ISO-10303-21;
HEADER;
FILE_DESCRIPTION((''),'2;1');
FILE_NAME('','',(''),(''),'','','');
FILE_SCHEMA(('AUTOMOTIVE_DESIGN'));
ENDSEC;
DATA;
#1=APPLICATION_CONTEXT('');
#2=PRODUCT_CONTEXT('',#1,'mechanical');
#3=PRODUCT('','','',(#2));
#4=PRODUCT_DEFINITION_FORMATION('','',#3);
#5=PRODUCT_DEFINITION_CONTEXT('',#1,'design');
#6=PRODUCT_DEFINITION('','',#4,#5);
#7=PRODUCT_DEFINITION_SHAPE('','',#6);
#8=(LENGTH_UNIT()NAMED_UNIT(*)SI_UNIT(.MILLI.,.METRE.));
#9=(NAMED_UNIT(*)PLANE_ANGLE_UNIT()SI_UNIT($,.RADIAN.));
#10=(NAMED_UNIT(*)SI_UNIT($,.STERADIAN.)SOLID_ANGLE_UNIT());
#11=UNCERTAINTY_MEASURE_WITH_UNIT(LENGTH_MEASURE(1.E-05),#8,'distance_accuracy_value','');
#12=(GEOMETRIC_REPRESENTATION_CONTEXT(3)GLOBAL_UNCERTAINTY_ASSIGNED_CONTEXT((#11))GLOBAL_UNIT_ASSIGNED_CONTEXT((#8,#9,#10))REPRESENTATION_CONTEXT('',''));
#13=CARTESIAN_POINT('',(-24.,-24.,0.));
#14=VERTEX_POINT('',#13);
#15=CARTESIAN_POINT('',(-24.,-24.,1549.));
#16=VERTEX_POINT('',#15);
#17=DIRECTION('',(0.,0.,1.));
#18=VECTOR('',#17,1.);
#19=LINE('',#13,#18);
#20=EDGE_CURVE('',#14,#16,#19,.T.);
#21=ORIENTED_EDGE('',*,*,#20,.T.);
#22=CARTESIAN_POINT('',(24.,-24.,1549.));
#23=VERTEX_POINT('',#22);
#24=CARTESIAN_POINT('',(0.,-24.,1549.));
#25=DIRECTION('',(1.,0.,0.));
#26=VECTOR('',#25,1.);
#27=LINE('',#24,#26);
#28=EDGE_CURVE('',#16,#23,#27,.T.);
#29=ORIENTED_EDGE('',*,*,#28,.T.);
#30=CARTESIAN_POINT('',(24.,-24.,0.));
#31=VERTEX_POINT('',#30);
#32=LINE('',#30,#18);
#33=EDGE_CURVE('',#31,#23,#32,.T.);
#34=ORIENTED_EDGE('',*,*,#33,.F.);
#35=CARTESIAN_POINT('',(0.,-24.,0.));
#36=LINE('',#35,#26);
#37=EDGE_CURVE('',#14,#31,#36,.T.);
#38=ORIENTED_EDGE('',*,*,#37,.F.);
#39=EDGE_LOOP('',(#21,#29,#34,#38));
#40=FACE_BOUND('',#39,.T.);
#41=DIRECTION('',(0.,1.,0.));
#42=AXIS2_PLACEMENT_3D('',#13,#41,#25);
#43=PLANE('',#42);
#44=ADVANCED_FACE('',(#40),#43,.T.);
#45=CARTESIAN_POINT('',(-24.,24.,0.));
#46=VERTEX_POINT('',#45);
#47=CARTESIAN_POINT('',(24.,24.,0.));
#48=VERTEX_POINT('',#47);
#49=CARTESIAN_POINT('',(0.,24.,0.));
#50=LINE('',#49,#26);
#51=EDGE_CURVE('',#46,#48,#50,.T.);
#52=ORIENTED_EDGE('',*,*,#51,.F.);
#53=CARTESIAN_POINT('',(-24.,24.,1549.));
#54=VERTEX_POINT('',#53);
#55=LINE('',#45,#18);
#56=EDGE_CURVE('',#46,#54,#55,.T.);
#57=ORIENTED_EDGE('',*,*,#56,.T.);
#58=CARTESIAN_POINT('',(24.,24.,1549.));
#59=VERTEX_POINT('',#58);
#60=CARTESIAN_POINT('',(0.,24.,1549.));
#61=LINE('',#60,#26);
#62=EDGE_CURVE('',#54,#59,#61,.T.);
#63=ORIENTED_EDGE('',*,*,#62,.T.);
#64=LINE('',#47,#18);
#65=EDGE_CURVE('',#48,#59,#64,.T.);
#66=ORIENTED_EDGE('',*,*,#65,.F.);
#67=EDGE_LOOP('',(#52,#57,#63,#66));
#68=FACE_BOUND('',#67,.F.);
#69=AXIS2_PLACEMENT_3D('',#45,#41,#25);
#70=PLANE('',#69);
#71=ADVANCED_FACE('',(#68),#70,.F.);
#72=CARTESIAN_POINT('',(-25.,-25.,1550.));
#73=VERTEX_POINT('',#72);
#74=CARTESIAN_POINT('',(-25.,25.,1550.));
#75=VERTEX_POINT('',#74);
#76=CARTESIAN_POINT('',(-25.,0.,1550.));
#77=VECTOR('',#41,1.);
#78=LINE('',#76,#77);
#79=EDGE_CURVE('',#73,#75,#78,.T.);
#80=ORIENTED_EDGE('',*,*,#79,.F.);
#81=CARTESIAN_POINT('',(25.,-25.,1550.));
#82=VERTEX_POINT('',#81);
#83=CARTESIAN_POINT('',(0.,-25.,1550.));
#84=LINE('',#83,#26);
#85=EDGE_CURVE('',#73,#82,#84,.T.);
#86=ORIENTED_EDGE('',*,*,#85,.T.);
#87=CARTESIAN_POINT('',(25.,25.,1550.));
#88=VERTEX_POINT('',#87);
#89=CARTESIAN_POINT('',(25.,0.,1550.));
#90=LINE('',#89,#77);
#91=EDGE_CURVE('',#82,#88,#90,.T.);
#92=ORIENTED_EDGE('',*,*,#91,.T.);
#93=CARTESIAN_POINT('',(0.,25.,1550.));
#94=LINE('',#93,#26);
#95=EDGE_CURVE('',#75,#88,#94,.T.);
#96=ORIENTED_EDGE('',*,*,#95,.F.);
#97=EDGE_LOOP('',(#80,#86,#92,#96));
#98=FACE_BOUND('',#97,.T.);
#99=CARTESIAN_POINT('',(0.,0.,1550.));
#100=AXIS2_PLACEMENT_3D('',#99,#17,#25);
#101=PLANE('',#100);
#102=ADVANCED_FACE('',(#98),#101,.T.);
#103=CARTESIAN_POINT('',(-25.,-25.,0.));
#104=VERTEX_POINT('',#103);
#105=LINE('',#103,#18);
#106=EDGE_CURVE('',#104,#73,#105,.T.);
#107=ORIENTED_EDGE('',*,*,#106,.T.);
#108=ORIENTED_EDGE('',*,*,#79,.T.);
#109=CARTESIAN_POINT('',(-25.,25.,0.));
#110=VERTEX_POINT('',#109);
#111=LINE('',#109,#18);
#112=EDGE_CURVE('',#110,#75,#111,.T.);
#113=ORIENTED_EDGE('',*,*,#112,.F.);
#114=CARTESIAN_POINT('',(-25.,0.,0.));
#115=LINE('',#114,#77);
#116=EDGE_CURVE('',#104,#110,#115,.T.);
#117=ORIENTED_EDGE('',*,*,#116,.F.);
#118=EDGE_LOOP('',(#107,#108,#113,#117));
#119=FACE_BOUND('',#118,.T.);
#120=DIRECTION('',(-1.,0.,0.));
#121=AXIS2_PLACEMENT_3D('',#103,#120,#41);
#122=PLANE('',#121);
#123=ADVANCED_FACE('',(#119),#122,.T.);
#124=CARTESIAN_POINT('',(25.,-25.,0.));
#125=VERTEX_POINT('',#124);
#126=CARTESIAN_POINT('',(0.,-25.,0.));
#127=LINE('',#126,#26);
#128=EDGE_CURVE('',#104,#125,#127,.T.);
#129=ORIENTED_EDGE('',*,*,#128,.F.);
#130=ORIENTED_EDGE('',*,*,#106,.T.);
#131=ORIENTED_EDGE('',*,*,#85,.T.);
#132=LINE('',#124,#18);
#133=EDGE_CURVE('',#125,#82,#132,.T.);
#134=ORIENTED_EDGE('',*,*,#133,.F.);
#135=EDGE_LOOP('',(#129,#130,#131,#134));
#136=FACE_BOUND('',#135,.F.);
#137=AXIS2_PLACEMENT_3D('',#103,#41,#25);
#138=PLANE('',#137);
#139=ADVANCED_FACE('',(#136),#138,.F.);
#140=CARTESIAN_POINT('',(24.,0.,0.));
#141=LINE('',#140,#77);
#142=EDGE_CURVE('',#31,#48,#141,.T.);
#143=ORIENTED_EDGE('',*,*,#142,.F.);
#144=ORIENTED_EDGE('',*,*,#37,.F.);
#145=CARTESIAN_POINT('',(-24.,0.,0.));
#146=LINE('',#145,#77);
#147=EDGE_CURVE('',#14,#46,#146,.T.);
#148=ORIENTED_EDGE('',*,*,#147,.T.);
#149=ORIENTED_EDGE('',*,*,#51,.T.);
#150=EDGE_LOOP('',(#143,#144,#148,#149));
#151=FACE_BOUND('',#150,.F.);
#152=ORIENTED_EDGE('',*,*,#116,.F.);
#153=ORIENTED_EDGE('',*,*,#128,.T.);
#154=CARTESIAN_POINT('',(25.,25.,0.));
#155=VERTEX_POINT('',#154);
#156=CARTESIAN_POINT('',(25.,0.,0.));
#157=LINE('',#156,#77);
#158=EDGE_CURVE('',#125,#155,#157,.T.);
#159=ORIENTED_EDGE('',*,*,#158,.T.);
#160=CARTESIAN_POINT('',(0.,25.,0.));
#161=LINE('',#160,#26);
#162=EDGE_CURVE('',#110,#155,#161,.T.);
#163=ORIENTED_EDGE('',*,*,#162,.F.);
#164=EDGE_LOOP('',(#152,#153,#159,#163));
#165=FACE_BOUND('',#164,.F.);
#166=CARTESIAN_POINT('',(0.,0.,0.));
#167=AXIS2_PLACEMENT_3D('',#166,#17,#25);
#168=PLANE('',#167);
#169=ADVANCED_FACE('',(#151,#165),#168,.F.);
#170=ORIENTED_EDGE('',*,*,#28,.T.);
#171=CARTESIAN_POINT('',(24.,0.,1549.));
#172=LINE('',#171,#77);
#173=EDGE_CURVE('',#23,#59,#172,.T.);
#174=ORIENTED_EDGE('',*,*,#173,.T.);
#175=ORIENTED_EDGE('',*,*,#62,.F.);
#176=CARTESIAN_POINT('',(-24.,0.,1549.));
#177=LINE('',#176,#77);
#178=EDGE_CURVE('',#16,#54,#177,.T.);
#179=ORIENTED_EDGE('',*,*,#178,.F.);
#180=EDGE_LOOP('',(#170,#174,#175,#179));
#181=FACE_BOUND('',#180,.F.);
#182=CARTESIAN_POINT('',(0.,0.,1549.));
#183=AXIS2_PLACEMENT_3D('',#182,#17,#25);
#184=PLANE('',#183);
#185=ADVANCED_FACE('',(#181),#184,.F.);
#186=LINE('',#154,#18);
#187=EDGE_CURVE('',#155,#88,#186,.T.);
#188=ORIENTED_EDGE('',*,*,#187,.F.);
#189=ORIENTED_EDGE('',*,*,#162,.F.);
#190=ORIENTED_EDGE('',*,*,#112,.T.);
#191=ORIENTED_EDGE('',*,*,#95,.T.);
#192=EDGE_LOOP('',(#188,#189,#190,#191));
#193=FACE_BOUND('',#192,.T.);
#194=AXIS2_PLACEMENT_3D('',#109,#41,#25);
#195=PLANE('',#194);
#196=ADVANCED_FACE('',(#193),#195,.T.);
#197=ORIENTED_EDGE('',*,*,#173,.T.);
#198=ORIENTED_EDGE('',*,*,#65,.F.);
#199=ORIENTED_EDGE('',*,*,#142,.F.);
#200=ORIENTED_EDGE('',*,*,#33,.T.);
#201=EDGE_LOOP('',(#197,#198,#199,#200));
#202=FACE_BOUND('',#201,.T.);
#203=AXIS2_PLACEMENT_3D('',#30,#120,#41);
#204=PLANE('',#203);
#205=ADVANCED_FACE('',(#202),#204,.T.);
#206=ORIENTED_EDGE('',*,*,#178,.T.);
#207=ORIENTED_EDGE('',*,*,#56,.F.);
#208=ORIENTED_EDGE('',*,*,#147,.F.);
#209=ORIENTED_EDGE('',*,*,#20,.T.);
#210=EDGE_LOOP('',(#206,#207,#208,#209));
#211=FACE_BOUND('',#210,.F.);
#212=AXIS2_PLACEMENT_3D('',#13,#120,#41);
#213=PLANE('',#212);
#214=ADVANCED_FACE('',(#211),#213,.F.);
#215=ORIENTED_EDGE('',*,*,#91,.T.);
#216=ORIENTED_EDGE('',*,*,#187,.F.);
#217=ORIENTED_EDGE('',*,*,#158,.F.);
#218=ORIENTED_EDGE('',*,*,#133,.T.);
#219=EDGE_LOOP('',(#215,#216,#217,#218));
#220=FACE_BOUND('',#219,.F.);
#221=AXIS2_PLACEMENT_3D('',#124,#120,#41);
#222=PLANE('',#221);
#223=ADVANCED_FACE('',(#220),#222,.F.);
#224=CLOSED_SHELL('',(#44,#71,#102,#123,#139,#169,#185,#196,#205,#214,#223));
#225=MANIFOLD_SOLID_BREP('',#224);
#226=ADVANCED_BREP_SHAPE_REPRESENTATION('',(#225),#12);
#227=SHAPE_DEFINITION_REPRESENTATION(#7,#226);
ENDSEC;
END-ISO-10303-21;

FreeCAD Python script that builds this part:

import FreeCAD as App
import Part
import Sketcher

V = App.Vector

doc = App.newDocument("Part")
params = doc.addObject("Spreadsheet::Sheet", "Params")
for row, (alias, value) in enumerate([
    ("sketch1_width", "50 mm"),
    ("sketch1_width2", "48 mm"),
    ("pad1_length", "1550 mm"),
    ("sketch2_width", "48 mm"),
    ("pad2_length", "1 mm"),
], start=1):
    params.set(f"A{row}", alias)
    params.set(f"B{row}", "=" + value)
    params.setAlias(f"B{row}", alias)

body = doc.addObject("PartDesign::Body", "Body")

# Sketch on XY plane
sketch1 = body.newObject("Sketcher::SketchObject", "Sketch")
sketch1.AttachmentSupport = (doc.getObject("XY_Plane"), [""])
sketch1.MapMode = "FlatFace"
sketch1.addGeometry([
    Part.LineSegment(V(-25, 25, 0), V(-25, -25, 0)),  # 0
    Part.LineSegment(V(-25, -25, 0), V(25, -25, 0)),  # 1
    Part.LineSegment(V(25, -25, 0), V(25, 25, 0)),  # 2
    Part.LineSegment(V(25, 25, 0), V(-25, 25, 0)),  # 3
    Part.LineSegment(V(24, -24, 0), V(-24, -24, 0)),  # 4
    Part.LineSegment(V(-24, -24, 0), V(-24, 24, 0)),  # 5
    Part.LineSegment(V(-24, 24, 0), V(24, 24, 0)),  # 6
    Part.LineSegment(V(24, 24, 0), V(24, -24, 0)),  # 7
], False)
sketch1.addConstraint([
    Sketcher.Constraint("Coincident", 0, 2, 1, 1),
    Sketcher.Constraint("Coincident", 1, 2, 2, 1),
    Sketcher.Constraint("Coincident", 2, 2, 3, 1),
    Sketcher.Constraint("Coincident", 3, 2, 0, 1),
    Sketcher.Constraint("Coincident", 4, 2, 5, 1),
    Sketcher.Constraint("Coincident", 5, 2, 6, 1),
    Sketcher.Constraint("Coincident", 6, 2, 7, 1),
    Sketcher.Constraint("Coincident", 7, 2, 4, 1),
    Sketcher.Constraint("Vertical", 0),
    Sketcher.Constraint("Horizontal", 1),
    Sketcher.Constraint("Vertical", 2),
    Sketcher.Constraint("Horizontal", 3),
    Sketcher.Constraint("Horizontal", 4),
    Sketcher.Constraint("Vertical", 5),
    Sketcher.Constraint("Horizontal", 6),
    Sketcher.Constraint("Vertical", 7),
    Sketcher.Constraint("Symmetric", 0, 2, 2, 2, -1, 1),
    Sketcher.Constraint("Symmetric", 4, 2, 6, 2, -1, 1),
    Sketcher.Constraint("Equal", 3, 0),
    Sketcher.Constraint("Equal", 6, 5),
    Sketcher.Constraint("DistanceX", 1, 1, 1, 2, 50.0),
    Sketcher.Constraint("DistanceX", 4, 2, 4, 1, 48.0),
])
sketch1.setExpression("Constraints[20]", "Params.sketch1_width")
sketch1.setExpression("Constraints[21]", "Params.sketch1_width2")
pad1 = body.newObject("PartDesign::Pad", "Pad")
pad1.Profile = sketch1
pad1.setExpression("Length", "Params.pad1_length")

# Sketch on XY plane
sketch2 = body.newObject("Sketcher::SketchObject", "Sketch001")
sketch2.AttachmentSupport = (doc.getObject("XY_Plane"), [""])
sketch2.MapMode = "FlatFace"
sketch2.AttachmentOffset = App.Placement(V(0, 0, 1550), App.Rotation())
sketch2.addGeometry([
    Part.LineSegment(V(-24, 24, 0), V(-24, -24, 0)),
    Part.LineSegment(V(-24, -24, 0), V(24, -24, 0)),
    Part.LineSegment(V(24, -24, 0), V(24, 24, 0)),
    Part.LineSegment(V(24, 24, 0), V(-24, 24, 0)),
], False)
sketch2.addConstraint([
    Sketcher.Constraint("Coincident", 0, 2, 1, 1),
    Sketcher.Constraint("Coincident", 1, 2, 2, 1),
    Sketcher.Constraint("Coincident", 2, 2, 3, 1),
    Sketcher.Constraint("Coincident", 3, 2, 0, 1),
    Sketcher.Constraint("Vertical", 0),
    Sketcher.Constraint("Horizontal", 1),
    Sketcher.Constraint("Vertical", 2),
    Sketcher.Constraint("Horizontal", 3),
    Sketcher.Constraint("Symmetric", 0, 2, 2, 2, -1, 1),
    Sketcher.Constraint("Equal", 3, 0),
    Sketcher.Constraint("DistanceX", 1, 1, 1, 2, 48.0),
])
sketch2.setExpression("Constraints[10]", "Params.sketch2_width")
pad2 = body.newObject("PartDesign::Pad", "Pad001")
pad2.Profile = sketch2
pad2.setExpression("Length", "Params.pad2_length")
pad2.Reversed = True

doc.recompute()
